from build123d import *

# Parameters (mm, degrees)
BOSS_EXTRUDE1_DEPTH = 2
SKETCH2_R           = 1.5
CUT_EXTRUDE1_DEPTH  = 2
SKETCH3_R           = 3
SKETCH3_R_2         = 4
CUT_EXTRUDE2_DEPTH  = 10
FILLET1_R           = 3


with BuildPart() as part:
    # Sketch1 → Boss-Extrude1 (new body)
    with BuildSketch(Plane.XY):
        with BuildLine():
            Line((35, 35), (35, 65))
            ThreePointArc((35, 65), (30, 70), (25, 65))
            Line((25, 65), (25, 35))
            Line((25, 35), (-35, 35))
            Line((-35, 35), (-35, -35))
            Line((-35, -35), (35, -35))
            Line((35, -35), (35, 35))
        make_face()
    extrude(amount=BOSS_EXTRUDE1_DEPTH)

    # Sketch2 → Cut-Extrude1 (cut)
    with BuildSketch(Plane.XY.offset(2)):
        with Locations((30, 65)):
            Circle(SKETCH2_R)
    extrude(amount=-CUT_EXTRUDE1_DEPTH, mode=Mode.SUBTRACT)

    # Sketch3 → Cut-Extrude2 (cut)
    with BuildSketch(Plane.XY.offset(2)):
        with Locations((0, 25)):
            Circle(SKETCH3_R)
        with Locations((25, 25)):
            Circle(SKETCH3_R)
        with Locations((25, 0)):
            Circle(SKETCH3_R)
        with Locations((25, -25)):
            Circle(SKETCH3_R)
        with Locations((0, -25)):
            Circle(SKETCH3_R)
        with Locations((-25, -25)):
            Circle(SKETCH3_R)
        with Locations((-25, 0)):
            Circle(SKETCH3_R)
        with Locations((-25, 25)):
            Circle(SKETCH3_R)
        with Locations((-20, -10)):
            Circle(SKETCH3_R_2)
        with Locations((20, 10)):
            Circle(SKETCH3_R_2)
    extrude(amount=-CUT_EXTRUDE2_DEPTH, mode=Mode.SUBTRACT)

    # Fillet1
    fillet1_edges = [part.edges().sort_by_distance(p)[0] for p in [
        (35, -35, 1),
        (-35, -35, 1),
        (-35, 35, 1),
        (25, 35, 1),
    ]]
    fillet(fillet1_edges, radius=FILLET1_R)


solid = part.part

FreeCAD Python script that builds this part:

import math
import FreeCAD as App
import Part
import Sketcher
from FreeCAD import Vector


def edges_at(feature, points):
    """Names of the edges that pass closest to the given points."""
    edges = feature.Shape.Edges
    near = lambda p: min(range(len(edges)), key=lambda i: edges[i].distToShape(Part.Vertex(*p))[0])
    return sorted({f"Edge{near(p) + 1}" for p in points})

doc = App.newDocument("Part")
params = doc.addObject("Spreadsheet::Sheet", "Params")
for row, (alias, value) in enumerate([
    ("sketch1_radius", "5 mm"),
    ("sketch1_width", "60 mm"),
    ("sketch1_height", "30 mm"),
    ("pad1_length", "2 mm"),
    ("sketch2_diameter", "3 mm"),
    ("pocket1_length", "2 mm"),
    ("sketch3_diameter", "6 mm"),
    ("sketch3_diameter2", "8 mm"),
    ("pocket2_length", "10 mm"),
    ("fillet_radius", "3 mm"),
], start=1):
    params.set(f"A{row}", alias)
    params.set(f"B{row}", "=" + value)
    params.setAlias(f"B{row}", alias)

body = doc.addObject("PartDesign::Body", "Body")

sketch1 = doc.addObject("Sketcher::SketchObject", "Sketch")
body.addObject(sketch1)
sketch1.AttachmentSupport = (doc.XY_Plane, [""])
sketch1.MapMode = "FlatFace"
sketch1.addGeometry(Part.ArcOfCircle(Part.Circle(Vector(30, 65, 0), Vector(0, 0, 1), 5), math.radians(0), math.radians(180)), False)
sketch1.addGeometry(Part.LineSegment(Vector(25, 65, 0), Vector(25, 35, 0)), False)
sketch1.addGeometry(Part.LineSegment(Vector(25, 35, 0), Vector(-35, 35, 0)), False)
sketch1.addGeometry(Part.LineSegment(Vector(-35, 35, 0), Vector(-35, -35, 0)), False)
sketch1.addGeometry(Part.LineSegment(Vector(-35, -35, 0), Vector(35, -35, 0)), False)
sketch1.addGeometry(Part.LineSegment(Vector(35, -35, 0), Vector(35, 65, 0)), False)
sketch1.addConstraint(Sketcher.Constraint("Tangent", 0, 2, 1, 1))
sketch1.addConstraint(Sketcher.Constraint("Coincident", 1, 2, 2, 1))
sketch1.addConstraint(Sketcher.Constraint("Coincident", 2, 2, 3, 1))
sketch1.addConstraint(Sketcher.Constraint("Coincident", 3, 2, 4, 1))
sketch1.addConstraint(Sketcher.Constraint("Coincident", 4, 2, 5, 1))
sketch1.addConstraint(Sketcher.Constraint("Tangent", 5, 2, 0, 1))
sketch1.addConstraint(Sketcher.Constraint("Vertical", 1))
sketch1.addConstraint(Sketcher.Constraint("Horizontal", 2))
sketch1.addConstraint(Sketcher.Constraint("Vertical", 3))
sketch1.addConstraint(Sketcher.Constraint("Horizontal", 4))
sketch1.addConstraint(Sketcher.Constraint("Vertical", 5))
sketch1.addConstraint(Sketcher.Constraint("Symmetric", 2, 2, 4, 2, -1, 1))
sketch1.addConstraint(Sketcher.Constraint("Equal", 4, 3))
sketch1.addConstraint(Sketcher.Constraint("Radius", 0, 5.0))
sketch1.addConstraint(Sketcher.Constraint("DistanceX", 2, 2, 2, 1, 60.0))
sketch1.addConstraint(Sketcher.Constraint("DistanceY", 1, 2, 1, 1, 30.0))
sketch1.setExpression("Constraints[13]", "Params.sketch1_radius")
sketch1.setExpression("Constraints[14]", "Params.sketch1_width")
sketch1.setExpression("Constraints[15]", "Params.sketch1_height")
pad1 = doc.addObject("PartDesign::Pad", "Pad")
body.addObject(pad1)
pad1.Profile = sketch1
pad1.setExpression("Length", "Params.pad1_length")

sketch2 = doc.addObject("Sketcher::SketchObject", "Sketch001")
body.addObject(sketch2)
sketch2.AttachmentSupport = (doc.XY_Plane, [""])
sketch2.MapMode = "FlatFace"
sketch2.AttachmentOffset = App.Placement(Vector(0, 0, 2), App.Rotation())
sketch2.addGeometry(Part.Circle(Vector(30, 65, 0), Vector(0, 0, 1), 1.5), False)
sketch2.addConstraint(Sketcher.Constraint("Diameter", 0, 3.0))
sketch2.addConstraint(Sketcher.Constraint("DistanceX", -1, 1, 0, 3, 30.0))
sketch2.addConstraint(Sketcher.Constraint("DistanceY", -1, 1, 0, 3, 65.0))
sketch2.setExpression("Constraints[0]", "Params.sketch2_diameter")
pocket1 = doc.addObject("PartDesign::Pocket", "Pocket")
body.addObject(pocket1)
pocket1.Profile = sketch2
pocket1.setExpression("Length", "Params.pocket1_length")

sketch3 = doc.addObject("Sketcher::SketchObject", "Sketch002")
body.addObject(sketch3)
sketch3.AttachmentSupport = (doc.XY_Plane, [""])
sketch3.MapMode = "FlatFace"
sketch3.AttachmentOffset = App.Placement(Vector(0, 0, 2), App.Rotation())
sketch3.addGeometry(Part.Circle(Vector(0, 25, 0), Vector(0, 0, 1), 3), False)
sketch3.addGeometry(Part.Circle(Vector(25, 25, 0), Vector(0, 0, 1), 3), False)
sketch3.addGeometry(Part.Circle(Vector(25, 0, 0), Vector(0, 0, 1), 3), False)
sketch3.addGeometry(Part.Circle(Vector(25, -25, 0), Vector(0, 0, 1), 3), False)
sketch3.addGeometry(Part.Circle(Vector(0, -25, 0), Vector(0, 0, 1), 3), False)
sketch3.addGeometry(Part.Circle(Vector(-25, -25, 0), Vector(0, 0, 1), 3), False)
sketch3.addGeometry(Part.Circle(Vector(-25, 0, 0), Vector(0, 0, 1), 3), False)
sketch3.addGeometry(Part.Circle(Vector(-25, 25, 0), Vector(0, 0, 1), 3), False)
sketch3.addGeometry(Part.Circle(Vector(-20, -10, 0), Vector(0, 0, 1), 4), False)
sketch3.addGeometry(Part.Circle(Vector(20, 10, 0), Vector(0, 0, 1), 4), False)
sketch3.addConstraint(Sketcher.Constraint("Equal", 0, 1))
sketch3.addConstraint(Sketcher.Constraint("Equal", 1, 2))
sketch3.addConstraint(Sketcher.Constraint("Equal", 2, 3))
sketch3.addConstraint(Sketcher.Constraint("Equal", 3, 4))
sketch3.addConstraint(Sketcher.Constraint("Equal", 4, 5))
sketch3.addConstraint(Sketcher.Constraint("Equal", 5, 6))
sketch3.addConstraint(Sketcher.Constraint("Equal", 6, 7))
sketch3.addConstraint(Sketcher.Constraint("Equal", 8, 9))
sketch3.addConstraint(Sketcher.Constraint("Symmetric", 0, 3, 4, 3, -1, 1))
sketch3.addConstraint(Sketcher.Constraint("Symmetric", 1, 3, 5, 3, -1, 1))
sketch3.addConstraint(Sketcher.Constraint("Symmetric", 2, 3, 6, 3, -1, 1))
sketch3.addConstraint(Sketcher.Constraint("Symmetric", 3, 3, 7, 3, -1, 1))
sketch3.addConstraint(Sketcher.Constraint("Symmetric", 8, 3, 9, 3, -1, 1))
sketch3.addConstraint(Sketcher.Constraint("Symmetric", 3, 3, 5, 3, -2))
sketch3.addConstraint(Sketcher.Constraint("PointOnObject", 0, 3, -2))
sketch3.addConstraint(Sketcher.Constraint("PointOnObject", 2, 3, -1))
sketch3.addConstraint(Sketcher.Constraint("Horizontal", 0, 3, 1, 3))
sketch3.addConstraint(Sketcher.Constraint("Vertical", 1, 3, 2, 3))
sketch3.addConstraint(Sketcher.Constraint("Diameter", 0, 6.0))
sketch3.addConstraint(Sketcher.Constraint("Diameter", 8, 8.0))
sketch3.addConstraint(Sketcher.Constraint("DistanceY", -1, 1, 0, 3, 25.0))
sketch3.addConstraint(Sketcher.Constraint("DistanceX", -1, 1, 1, 3, 25.0))
sketch3.addConstraint(Sketcher.Constraint("DistanceX", 8, 3, -1, 1, 20.0))
sketch3.addConstraint(Sketcher.Constraint("DistanceY", 8, 3, -1, 1, 10.0))
sketch3.setExpression("Constraints[18]", "Params.sketch3_diameter")
sketch3.setExpression("Constraints[19]", "Params.sketch3_diameter2")
pocket2 = doc.addObject("PartDesign::Pocket", "Pocket001")
body.addObject(pocket2)
pocket2.Profile = sketch3
pocket2.setExpression("Length", "Params.pocket2_length")
doc.recompute()

fillet = doc.addObject("PartDesign::Fillet", "Fillet")
body.addObject(fillet)
fillet.Base = (pocket2, edges_at(pocket2, [
    (35, -35, 1),
    (-35, -35, 1),
    (-35, 35, 1),
    (25, 35, 1),
]))
fillet.setExpression("Radius", "Params.fillet_radius")

doc.recompute()
